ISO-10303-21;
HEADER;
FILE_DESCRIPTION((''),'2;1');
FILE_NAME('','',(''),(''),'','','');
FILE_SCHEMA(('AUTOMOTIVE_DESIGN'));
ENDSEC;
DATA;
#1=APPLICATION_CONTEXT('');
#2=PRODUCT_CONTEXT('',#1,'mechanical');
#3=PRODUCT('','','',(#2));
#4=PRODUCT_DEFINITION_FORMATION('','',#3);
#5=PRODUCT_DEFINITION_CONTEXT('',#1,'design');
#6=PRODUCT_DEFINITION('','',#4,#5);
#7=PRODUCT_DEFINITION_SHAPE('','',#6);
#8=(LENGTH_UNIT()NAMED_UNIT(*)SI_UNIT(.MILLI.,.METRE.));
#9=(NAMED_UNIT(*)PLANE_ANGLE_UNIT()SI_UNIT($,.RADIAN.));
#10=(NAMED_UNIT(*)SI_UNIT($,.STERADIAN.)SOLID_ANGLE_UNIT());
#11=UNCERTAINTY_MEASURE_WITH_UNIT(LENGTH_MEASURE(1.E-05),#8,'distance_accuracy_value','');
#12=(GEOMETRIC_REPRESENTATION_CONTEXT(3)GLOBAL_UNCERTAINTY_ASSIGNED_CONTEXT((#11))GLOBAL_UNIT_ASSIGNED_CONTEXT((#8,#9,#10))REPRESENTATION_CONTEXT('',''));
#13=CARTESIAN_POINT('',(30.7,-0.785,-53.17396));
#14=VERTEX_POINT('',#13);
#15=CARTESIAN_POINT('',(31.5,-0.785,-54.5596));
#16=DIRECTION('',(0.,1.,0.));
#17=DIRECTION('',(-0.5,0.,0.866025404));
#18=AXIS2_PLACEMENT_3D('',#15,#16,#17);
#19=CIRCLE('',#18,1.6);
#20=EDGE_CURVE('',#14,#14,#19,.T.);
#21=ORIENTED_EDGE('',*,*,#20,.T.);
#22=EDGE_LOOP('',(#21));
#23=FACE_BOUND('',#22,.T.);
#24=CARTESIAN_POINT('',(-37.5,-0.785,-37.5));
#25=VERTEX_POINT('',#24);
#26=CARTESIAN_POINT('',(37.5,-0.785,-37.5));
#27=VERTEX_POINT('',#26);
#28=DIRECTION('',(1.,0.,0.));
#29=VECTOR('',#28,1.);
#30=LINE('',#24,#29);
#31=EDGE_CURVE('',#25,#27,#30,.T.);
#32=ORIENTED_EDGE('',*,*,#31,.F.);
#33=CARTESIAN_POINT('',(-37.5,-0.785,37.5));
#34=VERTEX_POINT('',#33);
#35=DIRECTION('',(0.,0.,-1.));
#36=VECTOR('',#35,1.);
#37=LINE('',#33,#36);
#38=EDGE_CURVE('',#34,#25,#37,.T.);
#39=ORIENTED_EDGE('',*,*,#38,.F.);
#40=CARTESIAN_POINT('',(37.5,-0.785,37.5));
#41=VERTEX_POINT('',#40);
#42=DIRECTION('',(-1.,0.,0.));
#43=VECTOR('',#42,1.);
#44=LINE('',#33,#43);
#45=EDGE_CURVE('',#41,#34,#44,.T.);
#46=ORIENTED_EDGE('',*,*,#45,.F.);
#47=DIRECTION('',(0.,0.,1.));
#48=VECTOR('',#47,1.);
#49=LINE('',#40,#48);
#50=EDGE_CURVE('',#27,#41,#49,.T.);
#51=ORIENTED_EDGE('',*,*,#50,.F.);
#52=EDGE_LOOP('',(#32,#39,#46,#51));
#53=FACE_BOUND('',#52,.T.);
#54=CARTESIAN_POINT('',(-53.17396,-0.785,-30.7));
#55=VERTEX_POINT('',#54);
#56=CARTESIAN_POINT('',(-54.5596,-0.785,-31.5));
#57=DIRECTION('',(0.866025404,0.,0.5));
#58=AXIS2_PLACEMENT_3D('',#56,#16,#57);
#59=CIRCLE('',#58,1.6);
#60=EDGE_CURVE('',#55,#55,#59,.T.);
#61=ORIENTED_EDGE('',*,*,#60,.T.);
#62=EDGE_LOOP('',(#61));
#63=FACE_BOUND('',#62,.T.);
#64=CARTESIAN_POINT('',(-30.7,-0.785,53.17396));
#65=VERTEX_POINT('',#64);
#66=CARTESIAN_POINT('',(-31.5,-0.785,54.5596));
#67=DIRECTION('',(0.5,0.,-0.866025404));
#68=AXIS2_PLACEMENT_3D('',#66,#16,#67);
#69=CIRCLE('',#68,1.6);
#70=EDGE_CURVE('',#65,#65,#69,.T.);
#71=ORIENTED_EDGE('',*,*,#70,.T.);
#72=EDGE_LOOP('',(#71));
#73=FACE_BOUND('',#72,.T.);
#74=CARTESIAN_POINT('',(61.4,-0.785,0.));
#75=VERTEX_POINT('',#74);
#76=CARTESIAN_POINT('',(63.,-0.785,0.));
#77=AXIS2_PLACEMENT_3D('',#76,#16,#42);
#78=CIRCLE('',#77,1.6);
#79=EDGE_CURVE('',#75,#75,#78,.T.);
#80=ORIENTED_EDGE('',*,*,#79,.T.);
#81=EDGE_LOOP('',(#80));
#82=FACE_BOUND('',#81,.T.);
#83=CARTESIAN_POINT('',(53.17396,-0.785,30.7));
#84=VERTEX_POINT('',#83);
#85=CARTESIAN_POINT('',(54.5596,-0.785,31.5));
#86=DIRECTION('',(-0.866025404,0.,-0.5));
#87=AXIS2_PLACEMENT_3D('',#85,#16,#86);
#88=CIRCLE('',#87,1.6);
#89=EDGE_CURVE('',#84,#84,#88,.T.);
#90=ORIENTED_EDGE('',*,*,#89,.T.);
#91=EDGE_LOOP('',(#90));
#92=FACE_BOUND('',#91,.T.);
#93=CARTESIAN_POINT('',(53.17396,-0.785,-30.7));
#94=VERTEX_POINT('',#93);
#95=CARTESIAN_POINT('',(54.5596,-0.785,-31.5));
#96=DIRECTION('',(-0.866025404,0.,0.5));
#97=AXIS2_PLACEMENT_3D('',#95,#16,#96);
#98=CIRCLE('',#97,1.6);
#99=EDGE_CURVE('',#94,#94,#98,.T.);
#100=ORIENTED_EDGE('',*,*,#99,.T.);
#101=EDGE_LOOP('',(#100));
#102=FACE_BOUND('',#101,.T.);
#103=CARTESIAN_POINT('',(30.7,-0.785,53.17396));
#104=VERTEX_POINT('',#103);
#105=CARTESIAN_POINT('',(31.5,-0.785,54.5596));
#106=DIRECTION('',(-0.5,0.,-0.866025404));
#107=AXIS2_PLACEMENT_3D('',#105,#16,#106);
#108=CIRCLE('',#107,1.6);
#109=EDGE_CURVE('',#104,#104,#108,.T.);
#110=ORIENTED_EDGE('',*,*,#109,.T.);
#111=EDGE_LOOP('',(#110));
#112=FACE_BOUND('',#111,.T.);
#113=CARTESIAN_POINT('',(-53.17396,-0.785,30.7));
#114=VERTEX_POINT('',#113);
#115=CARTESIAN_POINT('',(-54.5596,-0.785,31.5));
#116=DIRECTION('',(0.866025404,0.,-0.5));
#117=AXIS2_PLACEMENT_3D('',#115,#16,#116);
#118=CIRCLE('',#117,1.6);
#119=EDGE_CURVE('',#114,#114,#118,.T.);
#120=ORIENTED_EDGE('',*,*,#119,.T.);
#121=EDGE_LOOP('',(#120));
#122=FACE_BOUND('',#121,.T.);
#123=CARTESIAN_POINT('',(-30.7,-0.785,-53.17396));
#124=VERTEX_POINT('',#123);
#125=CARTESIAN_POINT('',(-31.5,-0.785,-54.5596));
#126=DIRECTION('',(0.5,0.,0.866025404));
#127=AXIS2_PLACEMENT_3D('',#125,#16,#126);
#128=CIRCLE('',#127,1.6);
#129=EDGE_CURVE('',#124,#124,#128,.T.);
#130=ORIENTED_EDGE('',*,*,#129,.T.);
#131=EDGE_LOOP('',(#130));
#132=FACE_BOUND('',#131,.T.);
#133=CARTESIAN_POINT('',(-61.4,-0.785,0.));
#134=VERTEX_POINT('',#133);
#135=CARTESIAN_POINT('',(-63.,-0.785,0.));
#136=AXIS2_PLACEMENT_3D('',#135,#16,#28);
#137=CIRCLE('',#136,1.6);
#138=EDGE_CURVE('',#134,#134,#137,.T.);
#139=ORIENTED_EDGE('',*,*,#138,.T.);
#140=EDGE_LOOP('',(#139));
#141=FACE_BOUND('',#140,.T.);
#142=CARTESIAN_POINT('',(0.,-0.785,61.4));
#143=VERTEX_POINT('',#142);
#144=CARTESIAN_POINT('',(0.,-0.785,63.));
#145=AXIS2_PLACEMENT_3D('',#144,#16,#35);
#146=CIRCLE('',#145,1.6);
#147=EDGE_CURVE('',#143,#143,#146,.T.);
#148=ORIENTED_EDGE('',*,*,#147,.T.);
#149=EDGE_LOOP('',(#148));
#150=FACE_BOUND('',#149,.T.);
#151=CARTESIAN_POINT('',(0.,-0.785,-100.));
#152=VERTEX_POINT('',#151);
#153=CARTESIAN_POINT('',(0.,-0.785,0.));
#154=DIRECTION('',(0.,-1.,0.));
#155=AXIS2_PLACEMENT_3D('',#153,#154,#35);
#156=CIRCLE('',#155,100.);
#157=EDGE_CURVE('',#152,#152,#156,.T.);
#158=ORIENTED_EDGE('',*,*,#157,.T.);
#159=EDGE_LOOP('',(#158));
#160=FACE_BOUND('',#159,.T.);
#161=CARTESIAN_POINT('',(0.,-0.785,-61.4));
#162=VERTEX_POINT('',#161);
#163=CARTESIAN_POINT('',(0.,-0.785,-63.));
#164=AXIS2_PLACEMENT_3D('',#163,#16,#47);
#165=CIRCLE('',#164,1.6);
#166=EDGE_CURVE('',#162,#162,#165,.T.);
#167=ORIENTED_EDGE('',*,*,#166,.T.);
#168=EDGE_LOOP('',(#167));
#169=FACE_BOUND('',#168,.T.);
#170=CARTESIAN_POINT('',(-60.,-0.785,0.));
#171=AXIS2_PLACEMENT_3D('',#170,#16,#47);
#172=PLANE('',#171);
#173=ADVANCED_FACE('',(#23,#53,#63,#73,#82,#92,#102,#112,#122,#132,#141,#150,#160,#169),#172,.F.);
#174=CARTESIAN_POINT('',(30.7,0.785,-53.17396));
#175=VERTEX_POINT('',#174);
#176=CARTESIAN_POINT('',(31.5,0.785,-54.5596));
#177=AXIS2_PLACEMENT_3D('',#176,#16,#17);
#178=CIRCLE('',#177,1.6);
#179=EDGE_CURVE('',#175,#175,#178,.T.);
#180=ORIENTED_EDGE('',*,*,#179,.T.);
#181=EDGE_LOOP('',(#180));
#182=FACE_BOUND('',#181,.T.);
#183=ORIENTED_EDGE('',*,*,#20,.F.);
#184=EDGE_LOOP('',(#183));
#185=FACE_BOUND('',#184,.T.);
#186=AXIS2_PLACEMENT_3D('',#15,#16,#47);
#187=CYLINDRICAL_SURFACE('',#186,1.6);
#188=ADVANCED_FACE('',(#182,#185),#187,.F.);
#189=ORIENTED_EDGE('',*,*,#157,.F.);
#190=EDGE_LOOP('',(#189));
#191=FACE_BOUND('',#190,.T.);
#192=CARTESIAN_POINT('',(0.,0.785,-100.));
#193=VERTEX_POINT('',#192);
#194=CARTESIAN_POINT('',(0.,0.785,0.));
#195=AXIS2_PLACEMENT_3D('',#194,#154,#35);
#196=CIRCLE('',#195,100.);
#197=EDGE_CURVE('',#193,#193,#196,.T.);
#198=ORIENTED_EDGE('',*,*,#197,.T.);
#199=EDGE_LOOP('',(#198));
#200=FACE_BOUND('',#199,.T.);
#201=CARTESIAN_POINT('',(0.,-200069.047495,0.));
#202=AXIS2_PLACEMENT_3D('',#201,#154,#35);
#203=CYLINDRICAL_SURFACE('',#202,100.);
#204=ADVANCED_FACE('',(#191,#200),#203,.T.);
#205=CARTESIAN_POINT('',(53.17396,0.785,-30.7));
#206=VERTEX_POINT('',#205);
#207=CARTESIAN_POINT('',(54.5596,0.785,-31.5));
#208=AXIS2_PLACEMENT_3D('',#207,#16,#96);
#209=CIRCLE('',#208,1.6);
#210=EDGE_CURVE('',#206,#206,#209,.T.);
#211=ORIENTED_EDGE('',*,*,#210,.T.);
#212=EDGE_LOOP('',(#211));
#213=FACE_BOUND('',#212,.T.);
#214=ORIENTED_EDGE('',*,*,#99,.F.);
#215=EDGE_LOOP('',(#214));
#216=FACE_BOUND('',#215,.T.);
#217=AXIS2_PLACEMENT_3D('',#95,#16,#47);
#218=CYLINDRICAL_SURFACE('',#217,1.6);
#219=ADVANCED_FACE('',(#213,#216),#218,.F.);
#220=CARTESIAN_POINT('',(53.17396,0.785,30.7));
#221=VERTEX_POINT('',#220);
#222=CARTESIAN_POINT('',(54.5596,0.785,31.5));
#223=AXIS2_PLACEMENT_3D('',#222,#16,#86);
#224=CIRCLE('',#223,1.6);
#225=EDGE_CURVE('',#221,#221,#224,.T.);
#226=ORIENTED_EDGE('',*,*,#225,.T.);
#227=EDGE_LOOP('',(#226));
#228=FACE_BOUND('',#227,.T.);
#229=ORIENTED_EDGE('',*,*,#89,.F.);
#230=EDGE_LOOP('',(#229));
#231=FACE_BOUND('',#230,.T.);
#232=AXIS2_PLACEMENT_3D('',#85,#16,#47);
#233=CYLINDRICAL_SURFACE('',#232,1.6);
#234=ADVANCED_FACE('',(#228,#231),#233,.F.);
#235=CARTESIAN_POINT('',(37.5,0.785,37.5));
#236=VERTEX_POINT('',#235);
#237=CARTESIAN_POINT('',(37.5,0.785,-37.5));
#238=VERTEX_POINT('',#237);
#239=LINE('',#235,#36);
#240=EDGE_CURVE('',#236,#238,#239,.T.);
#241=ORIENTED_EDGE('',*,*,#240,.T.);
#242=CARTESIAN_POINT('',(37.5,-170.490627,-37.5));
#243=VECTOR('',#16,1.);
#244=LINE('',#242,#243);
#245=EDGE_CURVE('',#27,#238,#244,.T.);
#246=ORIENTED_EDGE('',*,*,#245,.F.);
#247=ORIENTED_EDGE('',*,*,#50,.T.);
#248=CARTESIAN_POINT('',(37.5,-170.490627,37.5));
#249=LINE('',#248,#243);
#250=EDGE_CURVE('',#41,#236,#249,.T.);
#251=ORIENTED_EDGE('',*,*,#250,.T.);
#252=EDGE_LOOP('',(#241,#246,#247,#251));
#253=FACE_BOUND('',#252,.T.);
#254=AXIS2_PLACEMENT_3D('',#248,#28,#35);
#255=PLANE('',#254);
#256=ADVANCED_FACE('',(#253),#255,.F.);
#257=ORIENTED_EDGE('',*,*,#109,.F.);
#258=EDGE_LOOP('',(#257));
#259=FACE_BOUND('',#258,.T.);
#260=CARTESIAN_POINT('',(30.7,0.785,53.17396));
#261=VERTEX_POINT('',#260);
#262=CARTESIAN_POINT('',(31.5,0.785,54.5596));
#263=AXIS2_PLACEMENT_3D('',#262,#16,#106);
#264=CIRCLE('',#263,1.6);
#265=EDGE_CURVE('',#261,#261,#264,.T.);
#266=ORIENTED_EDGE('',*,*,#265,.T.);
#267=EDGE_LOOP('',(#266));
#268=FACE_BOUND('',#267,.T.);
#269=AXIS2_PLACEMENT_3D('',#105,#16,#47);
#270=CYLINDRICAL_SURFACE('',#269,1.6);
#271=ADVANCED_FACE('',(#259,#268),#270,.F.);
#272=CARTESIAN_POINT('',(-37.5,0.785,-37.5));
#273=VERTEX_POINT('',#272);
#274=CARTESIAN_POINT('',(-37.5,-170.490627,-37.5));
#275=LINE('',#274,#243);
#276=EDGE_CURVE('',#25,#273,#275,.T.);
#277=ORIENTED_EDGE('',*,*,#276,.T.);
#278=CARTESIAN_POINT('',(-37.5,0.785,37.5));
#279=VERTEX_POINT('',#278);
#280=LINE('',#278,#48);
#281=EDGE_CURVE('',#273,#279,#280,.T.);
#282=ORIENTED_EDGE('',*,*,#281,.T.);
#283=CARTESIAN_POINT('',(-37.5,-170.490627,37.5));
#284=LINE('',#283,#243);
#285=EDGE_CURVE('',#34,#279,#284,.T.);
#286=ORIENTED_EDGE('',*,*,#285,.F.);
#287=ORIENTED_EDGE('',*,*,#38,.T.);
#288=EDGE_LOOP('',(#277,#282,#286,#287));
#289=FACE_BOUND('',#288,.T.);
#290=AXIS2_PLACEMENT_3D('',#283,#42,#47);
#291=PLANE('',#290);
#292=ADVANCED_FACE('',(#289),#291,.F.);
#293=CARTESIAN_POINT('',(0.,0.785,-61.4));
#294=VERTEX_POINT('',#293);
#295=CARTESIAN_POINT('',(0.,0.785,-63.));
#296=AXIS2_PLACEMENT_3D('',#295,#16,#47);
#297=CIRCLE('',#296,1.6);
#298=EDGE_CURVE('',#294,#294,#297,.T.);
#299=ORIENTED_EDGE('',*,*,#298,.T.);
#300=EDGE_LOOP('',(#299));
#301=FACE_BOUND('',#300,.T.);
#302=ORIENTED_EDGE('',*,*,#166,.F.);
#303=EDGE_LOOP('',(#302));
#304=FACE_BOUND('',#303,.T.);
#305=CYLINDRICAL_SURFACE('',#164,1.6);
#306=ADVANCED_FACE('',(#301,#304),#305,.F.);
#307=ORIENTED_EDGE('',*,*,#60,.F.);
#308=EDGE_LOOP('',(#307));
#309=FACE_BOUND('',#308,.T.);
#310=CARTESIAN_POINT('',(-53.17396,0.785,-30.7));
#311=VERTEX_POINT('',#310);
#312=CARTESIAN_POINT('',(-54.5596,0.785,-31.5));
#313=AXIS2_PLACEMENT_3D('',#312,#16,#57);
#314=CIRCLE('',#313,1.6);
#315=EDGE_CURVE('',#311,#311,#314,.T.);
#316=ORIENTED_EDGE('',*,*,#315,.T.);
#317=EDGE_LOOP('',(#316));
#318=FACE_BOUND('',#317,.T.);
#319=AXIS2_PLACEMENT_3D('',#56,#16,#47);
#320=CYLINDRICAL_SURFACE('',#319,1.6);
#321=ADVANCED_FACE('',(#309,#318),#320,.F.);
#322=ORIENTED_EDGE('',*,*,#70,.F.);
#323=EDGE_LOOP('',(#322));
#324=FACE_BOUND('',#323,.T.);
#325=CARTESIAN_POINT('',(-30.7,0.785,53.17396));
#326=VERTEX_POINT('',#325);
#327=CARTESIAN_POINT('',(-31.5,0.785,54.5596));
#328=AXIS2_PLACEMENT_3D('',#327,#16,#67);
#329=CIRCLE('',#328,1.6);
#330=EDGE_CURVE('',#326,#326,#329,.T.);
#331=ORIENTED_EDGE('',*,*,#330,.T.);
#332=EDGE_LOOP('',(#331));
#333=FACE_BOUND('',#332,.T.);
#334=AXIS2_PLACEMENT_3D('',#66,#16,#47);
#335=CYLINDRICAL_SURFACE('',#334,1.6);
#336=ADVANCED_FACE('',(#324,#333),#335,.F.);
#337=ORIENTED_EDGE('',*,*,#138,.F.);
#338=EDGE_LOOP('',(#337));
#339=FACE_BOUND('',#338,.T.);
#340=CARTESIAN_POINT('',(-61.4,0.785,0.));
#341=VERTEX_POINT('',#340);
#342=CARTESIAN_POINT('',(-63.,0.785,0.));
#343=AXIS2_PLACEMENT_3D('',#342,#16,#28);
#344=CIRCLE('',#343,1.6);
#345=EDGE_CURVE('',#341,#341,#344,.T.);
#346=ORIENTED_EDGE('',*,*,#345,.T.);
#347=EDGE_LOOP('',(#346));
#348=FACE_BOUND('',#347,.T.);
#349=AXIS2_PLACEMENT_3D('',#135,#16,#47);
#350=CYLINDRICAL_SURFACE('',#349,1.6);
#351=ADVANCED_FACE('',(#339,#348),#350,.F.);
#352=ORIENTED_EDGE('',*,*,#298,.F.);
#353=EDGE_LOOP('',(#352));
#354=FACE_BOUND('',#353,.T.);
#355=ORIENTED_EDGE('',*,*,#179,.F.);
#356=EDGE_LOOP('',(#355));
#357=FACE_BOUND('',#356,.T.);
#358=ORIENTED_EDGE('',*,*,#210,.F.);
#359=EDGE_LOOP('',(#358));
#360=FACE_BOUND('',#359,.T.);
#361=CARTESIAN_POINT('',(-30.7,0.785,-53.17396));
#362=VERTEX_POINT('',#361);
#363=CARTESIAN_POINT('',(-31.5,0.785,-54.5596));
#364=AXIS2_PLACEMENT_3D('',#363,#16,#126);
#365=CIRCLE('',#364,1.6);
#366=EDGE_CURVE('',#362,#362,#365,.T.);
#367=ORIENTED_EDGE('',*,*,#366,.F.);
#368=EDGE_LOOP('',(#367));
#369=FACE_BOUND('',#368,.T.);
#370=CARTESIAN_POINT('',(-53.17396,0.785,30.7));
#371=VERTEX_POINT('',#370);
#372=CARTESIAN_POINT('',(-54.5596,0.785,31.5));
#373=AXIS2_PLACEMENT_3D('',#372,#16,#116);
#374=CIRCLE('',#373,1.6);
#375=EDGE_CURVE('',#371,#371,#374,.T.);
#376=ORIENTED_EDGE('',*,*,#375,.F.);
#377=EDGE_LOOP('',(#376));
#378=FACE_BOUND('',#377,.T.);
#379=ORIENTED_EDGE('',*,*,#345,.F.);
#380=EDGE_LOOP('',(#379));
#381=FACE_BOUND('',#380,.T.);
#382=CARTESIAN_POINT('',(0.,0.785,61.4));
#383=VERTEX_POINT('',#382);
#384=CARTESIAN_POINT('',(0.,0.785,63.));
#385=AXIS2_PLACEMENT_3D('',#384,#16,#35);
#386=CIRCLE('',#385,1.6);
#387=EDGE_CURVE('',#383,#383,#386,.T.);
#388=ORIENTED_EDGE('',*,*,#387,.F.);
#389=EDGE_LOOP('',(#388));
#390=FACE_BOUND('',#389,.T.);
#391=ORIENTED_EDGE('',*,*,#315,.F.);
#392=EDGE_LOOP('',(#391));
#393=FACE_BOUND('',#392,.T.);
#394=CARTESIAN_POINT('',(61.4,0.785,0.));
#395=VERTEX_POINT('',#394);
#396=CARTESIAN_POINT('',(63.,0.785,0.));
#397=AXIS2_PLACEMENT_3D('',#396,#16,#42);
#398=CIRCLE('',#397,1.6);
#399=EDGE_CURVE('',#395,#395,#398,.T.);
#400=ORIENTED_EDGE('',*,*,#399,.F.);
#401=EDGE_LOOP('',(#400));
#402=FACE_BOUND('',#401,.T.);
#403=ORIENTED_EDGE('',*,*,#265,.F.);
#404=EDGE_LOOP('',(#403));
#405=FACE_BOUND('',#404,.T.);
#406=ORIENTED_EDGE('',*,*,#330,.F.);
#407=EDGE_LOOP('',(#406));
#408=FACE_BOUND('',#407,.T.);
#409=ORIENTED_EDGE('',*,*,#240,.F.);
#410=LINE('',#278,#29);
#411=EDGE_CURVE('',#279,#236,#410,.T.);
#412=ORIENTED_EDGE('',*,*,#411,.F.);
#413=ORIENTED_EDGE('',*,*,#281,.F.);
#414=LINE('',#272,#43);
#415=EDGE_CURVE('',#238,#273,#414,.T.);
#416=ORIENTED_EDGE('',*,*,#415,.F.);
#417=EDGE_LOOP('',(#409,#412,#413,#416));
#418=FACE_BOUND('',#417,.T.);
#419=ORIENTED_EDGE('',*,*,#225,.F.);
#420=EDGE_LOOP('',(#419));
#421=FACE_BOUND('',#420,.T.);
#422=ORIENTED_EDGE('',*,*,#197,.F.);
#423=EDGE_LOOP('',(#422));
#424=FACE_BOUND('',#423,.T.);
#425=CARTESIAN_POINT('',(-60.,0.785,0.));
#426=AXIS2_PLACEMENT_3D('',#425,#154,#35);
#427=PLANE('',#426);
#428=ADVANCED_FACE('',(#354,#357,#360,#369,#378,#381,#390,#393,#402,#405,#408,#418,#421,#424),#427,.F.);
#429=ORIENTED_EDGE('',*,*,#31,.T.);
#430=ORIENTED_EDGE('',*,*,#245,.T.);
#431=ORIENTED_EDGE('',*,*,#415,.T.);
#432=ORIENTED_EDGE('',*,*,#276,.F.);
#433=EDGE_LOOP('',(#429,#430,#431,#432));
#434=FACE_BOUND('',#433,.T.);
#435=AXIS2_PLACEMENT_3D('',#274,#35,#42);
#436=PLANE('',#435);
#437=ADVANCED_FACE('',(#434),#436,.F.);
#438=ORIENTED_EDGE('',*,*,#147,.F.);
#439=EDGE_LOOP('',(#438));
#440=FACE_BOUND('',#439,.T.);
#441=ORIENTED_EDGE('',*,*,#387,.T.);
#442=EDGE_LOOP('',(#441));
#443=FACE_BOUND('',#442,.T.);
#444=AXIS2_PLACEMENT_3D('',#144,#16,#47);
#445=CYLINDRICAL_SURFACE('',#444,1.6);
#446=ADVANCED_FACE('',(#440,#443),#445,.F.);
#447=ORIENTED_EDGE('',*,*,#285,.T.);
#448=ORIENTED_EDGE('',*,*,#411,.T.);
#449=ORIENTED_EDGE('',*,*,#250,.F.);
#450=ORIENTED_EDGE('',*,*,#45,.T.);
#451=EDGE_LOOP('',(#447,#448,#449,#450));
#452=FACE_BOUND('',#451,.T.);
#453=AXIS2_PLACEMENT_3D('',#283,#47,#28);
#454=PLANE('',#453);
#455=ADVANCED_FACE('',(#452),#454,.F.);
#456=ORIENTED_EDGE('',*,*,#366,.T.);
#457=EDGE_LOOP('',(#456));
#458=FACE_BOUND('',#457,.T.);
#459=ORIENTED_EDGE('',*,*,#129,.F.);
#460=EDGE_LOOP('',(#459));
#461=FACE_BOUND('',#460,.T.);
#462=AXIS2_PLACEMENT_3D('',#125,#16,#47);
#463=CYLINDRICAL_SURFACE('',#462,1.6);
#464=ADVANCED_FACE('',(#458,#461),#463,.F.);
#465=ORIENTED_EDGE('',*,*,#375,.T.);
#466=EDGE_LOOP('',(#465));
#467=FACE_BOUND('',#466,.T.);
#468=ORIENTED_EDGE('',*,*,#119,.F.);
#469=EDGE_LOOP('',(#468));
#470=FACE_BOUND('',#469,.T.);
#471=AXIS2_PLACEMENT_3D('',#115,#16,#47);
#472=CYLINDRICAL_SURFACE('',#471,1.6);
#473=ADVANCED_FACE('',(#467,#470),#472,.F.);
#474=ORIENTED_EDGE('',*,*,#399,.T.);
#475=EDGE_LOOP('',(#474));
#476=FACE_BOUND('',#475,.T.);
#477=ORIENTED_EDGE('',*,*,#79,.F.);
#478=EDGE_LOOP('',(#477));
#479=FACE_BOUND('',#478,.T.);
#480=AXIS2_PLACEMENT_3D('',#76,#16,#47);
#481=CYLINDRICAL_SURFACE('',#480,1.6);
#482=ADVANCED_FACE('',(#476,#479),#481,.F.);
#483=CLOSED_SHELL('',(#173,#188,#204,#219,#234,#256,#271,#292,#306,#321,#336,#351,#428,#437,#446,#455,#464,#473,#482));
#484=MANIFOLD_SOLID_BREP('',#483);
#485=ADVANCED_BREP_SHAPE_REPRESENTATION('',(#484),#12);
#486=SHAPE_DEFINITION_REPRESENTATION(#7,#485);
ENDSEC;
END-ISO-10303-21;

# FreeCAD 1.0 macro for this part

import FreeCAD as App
import Part
import Sketcher
Q = App.Units.Quantity

doc = App.newDocument("Part")
body = doc.addObject("PartDesign::Body", "Body")

sketch1 = doc.addObject("Sketcher::SketchObject", "Sketch")
body.addObject(sketch1)
sketch1.AttachmentSupport = (doc.XY_Plane, [""])
sketch1.MapMode = "FlatFace"
sketch1.addGeometry([
    Part.LineSegment(App.Vector(-100, 0.8, 0), App.Vector(-100, -0.8, 0)),
    Part.LineSegment(App.Vector(-100, -0.8, 0), App.Vector(-60, -0.8, 0)),
    Part.LineSegment(App.Vector(-60, -0.8, 0), App.Vector(-60, 0.8, 0)),
    Part.LineSegment(App.Vector(-60, 0.8, 0), App.Vector(-100, 0.8, 0)),
], False)
sketch1.addConstraint([
    Sketcher.Constraint("Coincident", 0, 2, 1, 1),
    Sketcher.Constraint("Coincident", 1, 2, 2, 1),
    Sketcher.Constraint("Coincident", 2, 2, 3, 1),
    Sketcher.Constraint("Coincident", 3, 2, 0, 1),
    Sketcher.Constraint("Vertical", 0),
    Sketcher.Constraint("Horizontal", 1),
    Sketcher.Constraint("Vertical", 2),
    Sketcher.Constraint("Horizontal", 3),
    Sketcher.Constraint("DistanceX", 1, 1, 1, 2, Q("40 mm")),
    Sketcher.Constraint("DistanceX", 0, 2, -1, 1, Q("100 mm")),
    Sketcher.Constraint("DistanceY", 0, 2, 0, 1, Q("1.57 mm")),
    Sketcher.Constraint("DistanceY", 0, 2, -1, 1, Q("0.785 mm")),
])
revolution = doc.addObject("PartDesign::Revolution", "Revolution")
body.addObject(revolution)
revolution.Profile = sketch1
revolution.ReferenceAxis = (sketch1, ["V_Axis"])
revolution.Angle = 360

sketch2 = doc.addObject("Sketcher::SketchObject", "Sketch001")
body.addObject(sketch2)
sketch2.AttachmentSupport = (doc.XZ_Plane, [""])
sketch2.MapMode = "FlatFace"
sketch2.AttachmentOffset = App.Placement(App.Vector(0, 0, 0.785), App.Rotation())
sketch2.addGeometry([
    Part.Circle(App.Vector(0, 0, 0), App.Vector(0, 0, 1), 60),
    Part.LineSegment(App.Vector(38, 38, 0), App.Vector(-38, 38, 0)),
    Part.LineSegment(App.Vector(-38, 38, 0), App.Vector(-38, -38, 0)),
    Part.LineSegment(App.Vector(-38, -38, 0), App.Vector(38, -38, 0)),
    Part.LineSegment(App.Vector(38, -38, 0), App.Vector(38, 38, 0)),
], False)
sketch2.addConstraint([
    Sketcher.Constraint("Coincident", 1, 2, 2, 1),
    Sketcher.Constraint("Coincident", 2, 2, 3, 1),
    Sketcher.Constraint("Coincident", 3, 2, 4, 1),
    Sketcher.Constraint("Coincident", 4, 2, 1, 1),
    Sketcher.Constraint("Horizontal", 1),
    Sketcher.Constraint("Vertical", 2),
    Sketcher.Constraint("Horizontal", 3),
    Sketcher.Constraint("Vertical", 4),
    Sketcher.Constraint("Coincident", 0, 3, -1, 1),
    Sketcher.Constraint("Symmetric", 1, 2, 3, 2, -1, 1),
    Sketcher.Constraint("Equal", 3, 2),
    Sketcher.Constraint("Diameter", 0, Q("120 mm")),
    Sketcher.Constraint("DistanceX", 1, 2, 1, 1, Q("75 mm")),
])
pad1 = doc.addObject("PartDesign::Pad", "Pad")
body.addObject(pad1)
pad1.Profile = sketch2
pad1.Length = 1.57
pad1.Reversed = True

sketch3 = doc.addObject("Sketcher::SketchObject", "Sketch002")
body.addObject(sketch3)
sketch3.AttachmentSupport = (doc.XZ_Plane, [""])
sketch3.MapMode = "FlatFace"
sketch3.AttachmentOffset = App.Placement(App.Vector(0, 0, -0.785), App.Rotation())
sketch3.addGeometry(Part.Circle(App.Vector(0, -63, 0), App.Vector(0, 0, 1), 1.6), False)
sketch3.addConstraint([
    Sketcher.Constraint("PointOnObject", 0, 3, -2),
    Sketcher.Constraint("Diameter", 0, Q("3.2 mm")),
    Sketcher.Constraint("DistanceY", 0, 3, -1, 1, Q("63 mm")),
])
pocket1 = doc.addObject("PartDesign::Pocket", "Pocket")
body.addObject(pocket1)
pocket1.Profile = sketch3
pocket1.Type = "ThroughAll"
pocket1.Reversed = True
doc.recompute()

polarpattern = doc.addObject("PartDesign::PolarPattern", "PolarPattern")
body.addObject(polarpattern)
polarpattern.Originals = [pocket1]
polarpattern.Axis = (doc.Y_Axis, [""])
polarpattern.Angle = 360
polarpattern.Occurrences = 12
body.Tip = polarpattern

doc.recompute()
